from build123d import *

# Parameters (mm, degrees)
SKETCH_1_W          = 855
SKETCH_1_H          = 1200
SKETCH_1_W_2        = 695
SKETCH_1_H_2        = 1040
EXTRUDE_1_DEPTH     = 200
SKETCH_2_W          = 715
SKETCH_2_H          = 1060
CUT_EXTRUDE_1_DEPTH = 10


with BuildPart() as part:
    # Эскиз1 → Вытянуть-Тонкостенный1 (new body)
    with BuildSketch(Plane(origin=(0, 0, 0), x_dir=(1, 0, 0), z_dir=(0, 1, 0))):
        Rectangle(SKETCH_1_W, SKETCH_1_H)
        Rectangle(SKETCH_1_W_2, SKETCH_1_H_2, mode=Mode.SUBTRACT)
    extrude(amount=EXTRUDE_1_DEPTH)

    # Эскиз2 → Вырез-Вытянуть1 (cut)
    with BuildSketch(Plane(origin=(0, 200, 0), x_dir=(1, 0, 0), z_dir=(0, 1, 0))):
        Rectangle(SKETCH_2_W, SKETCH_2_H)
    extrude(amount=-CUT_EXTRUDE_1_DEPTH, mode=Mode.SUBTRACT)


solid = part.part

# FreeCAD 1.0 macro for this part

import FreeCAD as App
import Part
import Sketcher

V = App.Vector
Q = App.Units.Quantity

doc = App.newDocument("Part")
body = doc.addObject("PartDesign::Body", "Body")

sketch1 = body.newObject("Sketcher::SketchObject", "Sketch")
sketch1.AttachmentSupport = (doc.getObject("XZ_Plane"), [""])
sketch1.MapMode = "FlatFace"
sketch1.addGeometry([
    Part.LineSegment(V(-427.5, -600, 0), V(-427.5, 600, 0)),
    Part.LineSegment(V(-427.5, 600, 0), V(427.5, 600, 0)),
    Part.LineSegment(V(427.5, 600, 0), V(427.5, -600, 0)),
    Part.LineSegment(V(427.5, -600, 0), V(-427.5, -600, 0)),
    Part.LineSegment(V(347.5, 520, 0), V(-347.5, 520, 0)),
    Part.LineSegment(V(-347.5, 520, 0), V(-347.5, -520, 0)),
    Part.LineSegment(V(-347.5, -520, 0), V(347.5, -520, 0)),
    Part.LineSegment(V(347.5, -520, 0), V(347.5, 520, 0)),
], False)
sketch1.addConstraint([
    Sketcher.Constraint("Coincident", 0, 2, 1, 1),
    Sketcher.Constraint("Coincident", 1, 2, 2, 1),
    Sketcher.Constraint("Coincident", 2, 2, 3, 1),
    Sketcher.Constraint("Coincident", 3, 2, 0, 1),
    Sketcher.Constraint("Coincident", 4, 2, 5, 1),
    Sketcher.Constraint("Coincident", 5, 2, 6, 1),
    Sketcher.Constraint("Coincident", 6, 2, 7, 1),
    Sketcher.Constraint("Coincident", 7, 2, 4, 1),
    Sketcher.Constraint("Vertical", 0),
    Sketcher.Constraint("Horizontal", 1),
    Sketcher.Constraint("Vertical", 2),
    Sketcher.Constraint("Horizontal", 3),
    Sketcher.Constraint("Horizontal", 4),
    Sketcher.Constraint("Vertical", 5),
    Sketcher.Constraint("Horizontal", 6),
    Sketcher.Constraint("Vertical", 7),
    Sketcher.Constraint("Symmetric", 0, 2, 2, 2, -1, 1),
    Sketcher.Constraint("Symmetric", 4, 2, 6, 2, -1, 1),
    Sketcher.Constraint("DistanceX", 1, 1, 1, 2, Q("855 mm")),
    Sketcher.Constraint("DistanceX", 4, 2, 4, 1, Q("695 mm")),
    Sketcher.Constraint("DistanceY", 0, 1, 0, 2, Q("1200 mm")),
    Sketcher.Constraint("DistanceY", 5, 2, 5, 1, Q("1040 mm")),
])
pad1 = body.newObject("PartDesign::Pad", "Pad")
pad1.Profile = sketch1
pad1.Length = 200
pad1.Reversed = True

sketch2 = body.newObject("Sketcher::SketchObject", "Sketch001")
sketch2.AttachmentSupport = (doc.getObject("XZ_Plane"), [""])
sketch2.MapMode = "FlatFace"
sketch2.AttachmentOffset = App.Placement(V(0, 0, -200), App.Rotation())
sketch2.addGeometry([
    Part.LineSegment(V(-357.5, -530, 0), V(-357.5, 530, 0)),
    Part.LineSegment(V(-357.5, 530, 0), V(357.5, 530, 0)),
    Part.LineSegment(V(357.5, 530, 0), V(357.5, -530, 0)),
    Part.LineSegment(V(357.5, -530, 0), V(-357.5, -530, 0)),
], False)
sketch2.addConstraint([
    Sketcher.Constraint("Coincident", 0, 2, 1, 1),
    Sketcher.Constraint("Coincident", 1, 2, 2, 1),
    Sketcher.Constraint("Coincident", 2, 2, 3, 1),
    Sketcher.Constraint("Coincident", 3, 2, 0, 1),
    Sketcher.Constraint("Vertical", 0),
    Sketcher.Constraint("Horizontal", 1),
    Sketcher.Constraint("Vertical", 2),
    Sketcher.Constraint("Horizontal", 3),
    Sketcher.Constraint("Symmetric", 0, 2, 2, 2, -1, 1),
    Sketcher.Constraint("DistanceX", 1, 1, 1, 2, Q("715 mm")),
    Sketcher.Constraint("DistanceY", 0, 1, 0, 2, Q("1060 mm")),
])
pocket1 = body.newObject("PartDesign::Pocket", "Pocket")
pocket1.Profile = sketch2
pocket1.Length = 10
pocket1.Reversed = True

doc.recompute()
